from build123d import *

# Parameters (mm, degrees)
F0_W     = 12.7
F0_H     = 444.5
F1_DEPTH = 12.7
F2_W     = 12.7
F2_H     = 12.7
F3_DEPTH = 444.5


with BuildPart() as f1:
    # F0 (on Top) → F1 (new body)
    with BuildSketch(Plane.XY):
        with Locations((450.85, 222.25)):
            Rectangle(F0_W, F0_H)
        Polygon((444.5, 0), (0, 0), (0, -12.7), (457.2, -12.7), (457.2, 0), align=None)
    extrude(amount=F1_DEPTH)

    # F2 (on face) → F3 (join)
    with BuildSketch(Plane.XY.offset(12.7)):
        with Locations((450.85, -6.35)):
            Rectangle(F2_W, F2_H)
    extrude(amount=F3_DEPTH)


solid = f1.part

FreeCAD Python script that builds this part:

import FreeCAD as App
import Part
import Sketcher
from FreeCAD import Vector
Q = App.Units.Quantity

doc = App.newDocument("Part")
body = doc.addObject("PartDesign::Body", "Body")

sketch1 = doc.addObject("Sketcher::SketchObject", "Sketch")
body.addObject(sketch1)
sketch1.AttachmentSupport = (doc.XY_Plane, [""])
sketch1.MapMode = "FlatFace"
sketch1.addGeometry([
    Part.LineSegment(Vector(444, 444, 0), Vector(444, 0, 0)),
    Part.LineSegment(Vector(444, 0, 0), Vector(0, 0, 0)),
    Part.LineSegment(Vector(0, 0, 0), Vector(0, -13, 0)),
    Part.LineSegment(Vector(0, -13, 0), Vector(457, -13, 0)),
    Part.LineSegment(Vector(457, -13, 0), Vector(457, 444, 0)),
    Part.LineSegment(Vector(457, 444, 0), Vector(444, 444, 0)),
], False)
sketch1.addConstraint([
    Sketcher.Constraint("Coincident", 0, 2, 1, 1),
    Sketcher.Constraint("Coincident", 1, 2, 2, 1),
    Sketcher.Constraint("Coincident", 2, 2, 3, 1),
    Sketcher.Constraint("Coincident", 3, 2, 4, 1),
    Sketcher.Constraint("Coincident", 4, 2, 5, 1),
    Sketcher.Constraint("Coincident", 5, 2, 0, 1),
    Sketcher.Constraint("Vertical", 0),
    Sketcher.Constraint("Horizontal", 1),
    Sketcher.Constraint("Vertical", 2),
    Sketcher.Constraint("Horizontal", 3),
    Sketcher.Constraint("Vertical", 4),
    Sketcher.Constraint("Horizontal", 5),
    Sketcher.Constraint("Coincident", 1, 2, -1, 1),
    Sketcher.Constraint("Equal", 1, 0),
    Sketcher.Constraint("Equal", 5, 2),
    Sketcher.Constraint("DistanceX", 3, 1, 3, 2, Q("18 in")),
    Sketcher.Constraint("DistanceX", 1, 2, 1, 1, Q("17.5 in")),
])
pad1 = doc.addObject("PartDesign::Pad", "Pad")
body.addObject(pad1)
pad1.Profile = sketch1
pad1.Length = Q("0.5 in")

sketch2 = doc.addObject("Sketcher::SketchObject", "Sketch001")
body.addObject(sketch2)
sketch2.AttachmentSupport = (doc.XY_Plane, [""])
sketch2.MapMode = "FlatFace"
sketch2.AttachmentOffset = App.Placement(Vector(0, 0, 0.5 * 25.4), App.Rotation())
sketch2.addGeometry([
    Part.LineSegment(Vector(444, 0, 0), Vector(444, -13, 0)),
    Part.LineSegment(Vector(444, -13, 0), Vector(457, -13, 0)),
    Part.LineSegment(Vector(457, -13, 0), Vector(457, 0, 0)),
    Part.LineSegment(Vector(457, 0, 0), Vector(444, 0, 0)),
], False)
sketch2.addConstraint([
    Sketcher.Constraint("Coincident", 0, 2, 1, 1),
    Sketcher.Constraint("Coincident", 1, 2, 2, 1),
    Sketcher.Constraint("Coincident", 2, 2, 3, 1),
    Sketcher.Constraint("Coincident", 3, 2, 0, 1),
    Sketcher.Constraint("Vertical", 0),
    Sketcher.Constraint("Horizontal", 1),
    Sketcher.Constraint("Vertical", 2),
    Sketcher.Constraint("Horizontal", 3),
    Sketcher.Constraint("PointOnObject", 2, 2, -1),
    Sketcher.Constraint("Equal", 3, 0),
    Sketcher.Constraint("DistanceX", 1, 1, 1, 2, Q("0.5 in")),
    Sketcher.Constraint("DistanceX", -1, 1, 1, 2, Q("18 in")),
])
pad2 = doc.addObject("PartDesign::Pad", "Pad001")
body.addObject(pad2)
pad2.Profile = sketch2
pad2.Length = Q("17.5 in")

doc.recompute()
